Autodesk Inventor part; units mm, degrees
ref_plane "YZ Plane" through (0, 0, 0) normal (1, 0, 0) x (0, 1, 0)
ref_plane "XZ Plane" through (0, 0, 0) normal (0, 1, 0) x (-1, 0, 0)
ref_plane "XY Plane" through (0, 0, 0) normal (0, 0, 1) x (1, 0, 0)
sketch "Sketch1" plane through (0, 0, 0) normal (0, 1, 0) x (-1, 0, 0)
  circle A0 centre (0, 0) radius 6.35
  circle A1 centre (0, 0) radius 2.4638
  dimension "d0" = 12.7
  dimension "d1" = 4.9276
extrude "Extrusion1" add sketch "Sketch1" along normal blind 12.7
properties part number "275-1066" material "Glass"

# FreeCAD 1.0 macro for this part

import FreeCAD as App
import Part
import Sketcher

V = App.Vector
Q = App.Units.Quantity

doc = App.newDocument("Part")
body = doc.addObject("PartDesign::Body", "Body")

# Sketch on XZ plane
sketch1 = doc.addObject("Sketcher::SketchObject", "Sketch")
body.addObject(sketch1)
sketch1.AttachmentSupport = (doc.XZ_Plane, [""])
sketch1.MapMode = "FlatFace"
sketch1.addGeometry([
    Part.Circle(V(0, 0, 0), V(0, 0, 1), 6.3),
    Part.Circle(V(0, 0, 0), V(0, 0, 1), 2.5),
], False)
sketch1.addConstraint([
    Sketcher.Constraint("Coincident", 0, 3, -1, 1),
    Sketcher.Constraint("Coincident", 1, 3, -1, 1),
    Sketcher.Constraint("Diameter", 0, Q("0.5 in")),
    Sketcher.Constraint("Diameter", 1, Q("0.194 in")),
])
pad1 = doc.addObject("PartDesign::Pad", "Pad")
body.addObject(pad1)
pad1.Profile = sketch1
pad1.Length = Q("0.5 in")
pad1.Reversed = True

doc.recompute()
